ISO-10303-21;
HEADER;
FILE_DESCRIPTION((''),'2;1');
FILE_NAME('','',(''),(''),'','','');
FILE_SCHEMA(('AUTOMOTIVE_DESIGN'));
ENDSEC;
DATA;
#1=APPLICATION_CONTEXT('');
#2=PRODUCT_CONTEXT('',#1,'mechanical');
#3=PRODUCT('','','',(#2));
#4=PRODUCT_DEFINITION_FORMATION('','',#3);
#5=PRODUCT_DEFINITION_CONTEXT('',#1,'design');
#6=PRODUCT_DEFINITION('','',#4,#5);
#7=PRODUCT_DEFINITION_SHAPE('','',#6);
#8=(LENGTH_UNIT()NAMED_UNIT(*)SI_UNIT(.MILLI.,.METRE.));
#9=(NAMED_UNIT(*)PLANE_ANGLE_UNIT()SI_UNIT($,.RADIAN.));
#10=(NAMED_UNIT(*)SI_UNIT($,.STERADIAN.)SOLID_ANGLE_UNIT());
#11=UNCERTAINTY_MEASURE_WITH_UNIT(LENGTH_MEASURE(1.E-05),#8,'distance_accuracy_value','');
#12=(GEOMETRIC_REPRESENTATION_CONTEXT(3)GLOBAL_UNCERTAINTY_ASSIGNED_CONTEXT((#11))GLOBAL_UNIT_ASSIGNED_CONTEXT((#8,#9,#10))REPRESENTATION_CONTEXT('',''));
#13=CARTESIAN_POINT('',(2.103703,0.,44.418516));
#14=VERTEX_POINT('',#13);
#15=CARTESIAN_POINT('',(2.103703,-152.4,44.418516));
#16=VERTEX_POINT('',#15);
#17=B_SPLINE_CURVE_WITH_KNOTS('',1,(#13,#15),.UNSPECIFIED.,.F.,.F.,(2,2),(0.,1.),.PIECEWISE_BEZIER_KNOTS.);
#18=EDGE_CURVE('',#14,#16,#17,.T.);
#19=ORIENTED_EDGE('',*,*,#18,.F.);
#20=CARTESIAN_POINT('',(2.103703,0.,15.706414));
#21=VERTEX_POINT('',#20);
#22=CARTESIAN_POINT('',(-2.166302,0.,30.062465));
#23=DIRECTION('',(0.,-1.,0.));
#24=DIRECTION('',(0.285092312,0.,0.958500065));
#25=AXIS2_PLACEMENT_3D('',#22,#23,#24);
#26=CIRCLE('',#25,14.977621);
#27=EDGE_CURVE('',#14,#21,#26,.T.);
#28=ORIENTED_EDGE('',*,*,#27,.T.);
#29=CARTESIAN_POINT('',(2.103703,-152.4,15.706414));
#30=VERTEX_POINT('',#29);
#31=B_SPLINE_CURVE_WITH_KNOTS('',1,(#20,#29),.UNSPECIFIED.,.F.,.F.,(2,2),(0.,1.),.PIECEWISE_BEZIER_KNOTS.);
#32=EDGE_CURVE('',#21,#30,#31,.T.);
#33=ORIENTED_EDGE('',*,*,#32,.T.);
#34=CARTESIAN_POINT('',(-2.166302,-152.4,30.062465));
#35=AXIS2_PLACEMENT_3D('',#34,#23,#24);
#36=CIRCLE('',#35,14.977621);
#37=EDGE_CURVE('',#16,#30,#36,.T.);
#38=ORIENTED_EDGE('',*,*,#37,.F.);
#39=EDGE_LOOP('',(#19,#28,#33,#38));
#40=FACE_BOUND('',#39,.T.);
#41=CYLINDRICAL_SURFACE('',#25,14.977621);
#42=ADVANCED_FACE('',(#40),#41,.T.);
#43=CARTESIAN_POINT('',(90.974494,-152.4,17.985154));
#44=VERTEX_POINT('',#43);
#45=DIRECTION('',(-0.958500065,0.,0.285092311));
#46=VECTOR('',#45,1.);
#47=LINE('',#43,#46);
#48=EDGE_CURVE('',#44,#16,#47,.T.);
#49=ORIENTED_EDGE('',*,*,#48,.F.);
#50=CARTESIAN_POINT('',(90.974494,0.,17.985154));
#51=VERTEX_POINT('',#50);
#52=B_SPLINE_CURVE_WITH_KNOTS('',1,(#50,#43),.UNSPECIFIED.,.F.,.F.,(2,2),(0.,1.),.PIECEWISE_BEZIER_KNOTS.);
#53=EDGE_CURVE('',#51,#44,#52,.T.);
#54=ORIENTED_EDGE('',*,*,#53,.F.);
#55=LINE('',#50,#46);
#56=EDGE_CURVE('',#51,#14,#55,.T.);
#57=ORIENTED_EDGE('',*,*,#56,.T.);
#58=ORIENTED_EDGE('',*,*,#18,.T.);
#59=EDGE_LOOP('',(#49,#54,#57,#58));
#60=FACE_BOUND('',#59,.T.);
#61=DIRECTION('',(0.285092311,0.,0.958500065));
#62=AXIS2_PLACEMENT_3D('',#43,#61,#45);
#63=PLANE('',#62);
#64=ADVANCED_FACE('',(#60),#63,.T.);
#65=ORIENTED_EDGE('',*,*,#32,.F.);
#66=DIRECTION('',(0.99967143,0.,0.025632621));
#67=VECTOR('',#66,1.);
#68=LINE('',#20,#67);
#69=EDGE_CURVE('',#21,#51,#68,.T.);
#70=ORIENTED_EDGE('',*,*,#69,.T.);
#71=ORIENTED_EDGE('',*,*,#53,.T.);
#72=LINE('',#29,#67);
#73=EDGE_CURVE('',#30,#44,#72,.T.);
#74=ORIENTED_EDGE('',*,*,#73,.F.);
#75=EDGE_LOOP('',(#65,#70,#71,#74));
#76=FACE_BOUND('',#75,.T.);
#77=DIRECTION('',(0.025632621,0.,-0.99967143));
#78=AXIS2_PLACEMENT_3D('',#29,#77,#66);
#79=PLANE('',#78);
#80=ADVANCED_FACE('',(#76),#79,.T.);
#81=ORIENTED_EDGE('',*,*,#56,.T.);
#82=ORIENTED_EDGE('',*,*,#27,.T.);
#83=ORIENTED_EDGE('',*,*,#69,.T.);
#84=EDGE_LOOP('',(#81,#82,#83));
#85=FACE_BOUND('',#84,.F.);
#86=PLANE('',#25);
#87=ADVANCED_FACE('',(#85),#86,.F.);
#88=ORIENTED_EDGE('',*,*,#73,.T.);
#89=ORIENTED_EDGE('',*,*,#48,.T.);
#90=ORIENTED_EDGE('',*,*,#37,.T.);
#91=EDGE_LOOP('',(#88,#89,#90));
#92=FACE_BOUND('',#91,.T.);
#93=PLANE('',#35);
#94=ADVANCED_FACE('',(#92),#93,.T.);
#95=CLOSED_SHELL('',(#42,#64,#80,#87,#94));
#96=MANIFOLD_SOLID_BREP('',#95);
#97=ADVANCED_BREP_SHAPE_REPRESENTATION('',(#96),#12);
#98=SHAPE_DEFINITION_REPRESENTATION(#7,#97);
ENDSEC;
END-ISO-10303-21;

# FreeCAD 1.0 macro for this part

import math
import FreeCAD as App
import Part
import Sketcher

V = App.Vector
Q = App.Units.Quantity

doc = App.newDocument("Part")
body = doc.addObject("PartDesign::Body", "Body")

# Sketch on XZ plane
sketch1 = body.newObject("Sketcher::SketchObject", "Sketch")
sketch1.AttachmentSupport = (doc.getObject("XZ_Plane"), [""])
sketch1.MapMode = "FlatFace"
sketch1.addGeometry(Part.LineSegment(V(91, 18, 0), V(2, 44, 0)), False)
sketch1.addGeometry(Part.ArcOfCircle(Part.Circle(V(-2, 30, 0), V(0, 0, 1), 15), math.radians(73), math.radians(287)), False)
sketch1.addGeometry(Part.LineSegment(V(2, 16, 0), V(91, 18, 0)), False)
sketch1.addConstraint(Sketcher.Constraint("Tangent", 0, 2, 1, 1))
sketch1.addConstraint(Sketcher.Constraint("Coincident", 1, 2, 2, 1))
sketch1.addConstraint(Sketcher.Constraint("Coincident", 2, 2, 0, 1))
sketch1.addConstraint(Sketcher.Constraint("Vertical", 0, 2, 1, 2))
sketch1.addConstraint(Sketcher.Constraint("Distance", 2, Q("3.5 in")))
sketch1.addConstraint(Sketcher.Constraint("Radius", 1, 14.977621))
sketch1.addConstraint(Sketcher.Constraint("DistanceX", 1, 3, -1, 1, 2.166302))
sketch1.addConstraint(Sketcher.Constraint("DistanceY", 1, 3, 0, 2, 14.356051))
sketch1.addConstraint(Sketcher.Constraint("DistanceY", -1, 1, 1, 3, 30.062465))

# Sketch on XZ plane
sketch2 = body.newObject("Sketcher::SketchObject", "Sketch001")
sketch2.AttachmentSupport = (doc.getObject("XZ_Plane"), [""])
sketch2.MapMode = "FlatFace"
sketch2.AttachmentOffset = App.Placement(V(0, 0, 6 * 25.4), App.Rotation())
sketch2.addGeometry(Part.LineSegment(V(2, 16, 0), V(91, 18, 0)), False)
sketch2.addGeometry(Part.LineSegment(V(91, 18, 0), V(2, 44, 0)), False)
sketch2.addGeometry(Part.ArcOfCircle(Part.Circle(V(-2, 30, 0), V(0, 0, 1), 15), math.radians(73), math.radians(287)), False)
sketch2.addConstraint(Sketcher.Constraint("Coincident", 0, 2, 1, 1))
sketch2.addConstraint(Sketcher.Constraint("Tangent", 1, 2, 2, 1))
sketch2.addConstraint(Sketcher.Constraint("Coincident", 2, 2, 0, 1))
sketch2.addConstraint(Sketcher.Constraint("Vertical", 1, 2, 2, 2))
sketch2.addConstraint(Sketcher.Constraint("Distance", 0, Q("3.5 in")))
sketch2.addConstraint(Sketcher.Constraint("Radius", 2, 14.977621))
sketch2.addConstraint(Sketcher.Constraint("DistanceX", 2, 3, -1, 1, 2.166302))
sketch2.addConstraint(Sketcher.Constraint("DistanceY", 0, 2, 2, 3, 12.077311))
sketch2.addConstraint(Sketcher.Constraint("DistanceY", -1, 1, 2, 3, 30.062465))

additiveloft = body.newObject("PartDesign::AdditiveLoft", "AdditiveLoft")
additiveloft.Profile = sketch1
additiveloft.Sections = [sketch2]

doc.recompute()
